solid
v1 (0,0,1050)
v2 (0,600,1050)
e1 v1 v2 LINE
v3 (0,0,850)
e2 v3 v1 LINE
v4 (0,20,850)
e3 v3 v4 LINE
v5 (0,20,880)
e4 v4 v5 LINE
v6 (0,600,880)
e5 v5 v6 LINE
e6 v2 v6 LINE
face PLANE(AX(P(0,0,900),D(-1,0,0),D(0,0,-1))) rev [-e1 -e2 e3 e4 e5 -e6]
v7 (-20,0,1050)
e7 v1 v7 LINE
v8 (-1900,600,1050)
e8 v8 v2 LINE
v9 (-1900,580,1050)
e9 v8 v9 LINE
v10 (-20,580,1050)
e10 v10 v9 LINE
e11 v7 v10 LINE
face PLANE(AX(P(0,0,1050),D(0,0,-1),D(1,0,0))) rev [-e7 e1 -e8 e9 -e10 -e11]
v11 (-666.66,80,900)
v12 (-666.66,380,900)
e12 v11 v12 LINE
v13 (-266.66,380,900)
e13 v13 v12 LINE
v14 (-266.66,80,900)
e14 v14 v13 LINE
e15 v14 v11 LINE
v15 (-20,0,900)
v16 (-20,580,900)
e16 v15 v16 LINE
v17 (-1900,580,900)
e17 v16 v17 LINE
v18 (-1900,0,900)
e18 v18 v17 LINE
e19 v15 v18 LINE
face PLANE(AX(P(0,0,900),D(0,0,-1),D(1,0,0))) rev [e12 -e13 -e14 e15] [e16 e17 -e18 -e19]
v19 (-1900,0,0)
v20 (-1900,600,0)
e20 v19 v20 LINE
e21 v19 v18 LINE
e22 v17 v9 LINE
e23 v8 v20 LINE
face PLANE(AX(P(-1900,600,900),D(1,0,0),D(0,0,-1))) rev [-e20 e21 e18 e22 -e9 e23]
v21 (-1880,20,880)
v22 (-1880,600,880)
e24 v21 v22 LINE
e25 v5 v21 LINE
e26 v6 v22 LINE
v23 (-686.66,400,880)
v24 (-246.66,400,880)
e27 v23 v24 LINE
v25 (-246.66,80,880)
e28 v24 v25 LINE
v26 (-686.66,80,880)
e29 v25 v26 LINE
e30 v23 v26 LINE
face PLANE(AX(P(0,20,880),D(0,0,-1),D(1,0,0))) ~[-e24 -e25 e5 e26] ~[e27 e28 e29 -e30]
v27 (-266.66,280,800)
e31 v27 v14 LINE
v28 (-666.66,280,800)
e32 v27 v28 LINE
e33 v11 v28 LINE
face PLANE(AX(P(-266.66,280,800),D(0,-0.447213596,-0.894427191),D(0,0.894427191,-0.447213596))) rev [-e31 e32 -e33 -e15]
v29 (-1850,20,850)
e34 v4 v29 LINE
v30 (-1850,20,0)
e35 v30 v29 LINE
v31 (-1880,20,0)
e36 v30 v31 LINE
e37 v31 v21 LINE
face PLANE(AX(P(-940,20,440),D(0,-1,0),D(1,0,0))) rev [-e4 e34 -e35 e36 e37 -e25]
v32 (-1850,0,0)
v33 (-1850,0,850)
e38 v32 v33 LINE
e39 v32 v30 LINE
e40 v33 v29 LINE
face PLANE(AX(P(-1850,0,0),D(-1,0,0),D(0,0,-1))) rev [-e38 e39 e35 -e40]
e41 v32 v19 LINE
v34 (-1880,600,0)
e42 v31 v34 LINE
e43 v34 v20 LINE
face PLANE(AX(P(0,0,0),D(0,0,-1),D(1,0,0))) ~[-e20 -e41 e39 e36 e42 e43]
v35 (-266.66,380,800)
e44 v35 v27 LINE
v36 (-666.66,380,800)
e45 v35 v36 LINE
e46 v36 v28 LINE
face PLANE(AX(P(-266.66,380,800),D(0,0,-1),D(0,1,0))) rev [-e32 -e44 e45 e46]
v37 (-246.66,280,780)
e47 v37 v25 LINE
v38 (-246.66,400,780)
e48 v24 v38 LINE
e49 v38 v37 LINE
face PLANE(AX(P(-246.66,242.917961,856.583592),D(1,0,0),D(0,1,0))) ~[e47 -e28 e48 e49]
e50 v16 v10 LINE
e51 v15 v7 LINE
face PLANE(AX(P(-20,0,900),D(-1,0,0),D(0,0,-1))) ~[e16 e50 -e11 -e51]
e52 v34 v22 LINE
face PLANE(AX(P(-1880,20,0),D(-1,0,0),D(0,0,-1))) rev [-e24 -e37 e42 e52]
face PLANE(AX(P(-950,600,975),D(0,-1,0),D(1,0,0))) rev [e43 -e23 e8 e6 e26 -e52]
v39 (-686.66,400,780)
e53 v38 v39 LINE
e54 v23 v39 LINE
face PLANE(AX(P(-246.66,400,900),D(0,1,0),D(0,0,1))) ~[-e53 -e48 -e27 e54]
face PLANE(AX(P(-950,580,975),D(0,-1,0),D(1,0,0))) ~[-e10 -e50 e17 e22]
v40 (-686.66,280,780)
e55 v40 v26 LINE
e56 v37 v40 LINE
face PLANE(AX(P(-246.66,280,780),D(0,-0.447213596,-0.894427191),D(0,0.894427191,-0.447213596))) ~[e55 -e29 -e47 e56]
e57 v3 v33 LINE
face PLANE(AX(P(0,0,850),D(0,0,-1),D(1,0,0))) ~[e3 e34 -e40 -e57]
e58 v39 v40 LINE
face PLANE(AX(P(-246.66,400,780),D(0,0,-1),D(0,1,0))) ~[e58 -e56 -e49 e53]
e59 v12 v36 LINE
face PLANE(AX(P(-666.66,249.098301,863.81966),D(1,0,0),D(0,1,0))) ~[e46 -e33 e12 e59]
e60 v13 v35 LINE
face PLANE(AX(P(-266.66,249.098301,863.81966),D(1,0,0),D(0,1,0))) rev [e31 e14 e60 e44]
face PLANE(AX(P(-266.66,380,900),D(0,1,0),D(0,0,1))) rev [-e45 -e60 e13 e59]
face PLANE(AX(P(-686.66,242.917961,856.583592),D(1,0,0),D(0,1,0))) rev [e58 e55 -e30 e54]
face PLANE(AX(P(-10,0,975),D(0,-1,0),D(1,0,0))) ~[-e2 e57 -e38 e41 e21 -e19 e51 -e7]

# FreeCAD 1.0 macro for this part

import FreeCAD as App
import Part
import Sketcher

V = App.Vector

doc = App.newDocument("Part")
body = doc.addObject("PartDesign::Body", "Body")

# Sketch on XZ plane
sketch1 = doc.addObject("Sketcher::SketchObject", "Sketch")
body.addObject(sketch1)
sketch1.AttachmentSupport = (doc.XZ_Plane, [""])
sketch1.MapMode = "FlatFace"
sketch1.addGeometry(Part.LineSegment(V(0, 880, 0), V(0, 0, 0)), False)
sketch1.addGeometry(Part.LineSegment(V(0, 0, 0), V(1880, 0, 0)), False)
sketch1.addGeometry(Part.LineSegment(V(1880, 0, 0), V(1880, 880, 0)), False)
sketch1.addGeometry(Part.LineSegment(V(1880, 880, 0), V(0, 880, 0)), False)
sketch1.addConstraint(Sketcher.Constraint("Coincident", 0, 2, 1, 1))
sketch1.addConstraint(Sketcher.Constraint("Coincident", 1, 2, 2, 1))
sketch1.addConstraint(Sketcher.Constraint("Coincident", 2, 2, 3, 1))
sketch1.addConstraint(Sketcher.Constraint("Coincident", 3, 2, 0, 1))
sketch1.addConstraint(Sketcher.Constraint("Vertical", 0))
sketch1.addConstraint(Sketcher.Constraint("Horizontal", 1))
sketch1.addConstraint(Sketcher.Constraint("Vertical", 2))
sketch1.addConstraint(Sketcher.Constraint("Horizontal", 3))
sketch1.addConstraint(Sketcher.Constraint("Coincident", 0, 2, -1, 1))
sketch1.addConstraint(Sketcher.Constraint("DistanceX", 1, 1, 1, 2, 1880.0))
sketch1.addConstraint(Sketcher.Constraint("DistanceY", 0, 2, 0, 1, 880.0))
pad1 = doc.addObject("PartDesign::Pad", "Pad")
body.addObject(pad1)
pad1.Profile = sketch1
pad1.Length = 580
pad1.Reversed = True
body2 = doc.addObject("PartDesign::Body", "Body001")
doc.recompute()

body.Placement = App.Placement(V(0, 20, 0), App.Rotation(V(0, 0, 1), 0))
boolean = doc.addObject("PartDesign::Boolean", "Boolean")
body2.addObject(boolean)
boolean.Type = "Fuse"
boolean.addObjects([body])
body3 = doc.addObject("PartDesign::Body", "Body002")

# Sketch on XZ plane
sketch2 = doc.addObject("Sketcher::SketchObject", "Sketch001")
body3.addObject(sketch2)
sketch2.AttachmentSupport = (doc.getObject("XZ_Plane002"), [""])
sketch2.MapMode = "FlatFace"
sketch2.addGeometry(Part.LineSegment(V(0, 850, 0), V(0, 0, 0)), False)
sketch2.addGeometry(Part.LineSegment(V(0, 0, 0), V(1850, 0, 0)), False)
sketch2.addGeometry(Part.LineSegment(V(1850, 0, 0), V(1850, 850, 0)), False)
sketch2.addGeometry(Part.LineSegment(V(1850, 850, 0), V(0, 850, 0)), False)
sketch2.addConstraint(Sketcher.Constraint("Coincident", 0, 2, 1, 1))
sketch2.addConstraint(Sketcher.Constraint("Coincident", 1, 2, 2, 1))
sketch2.addConstraint(Sketcher.Constraint("Coincident", 2, 2, 3, 1))
sketch2.addConstraint(Sketcher.Constraint("Coincident", 3, 2, 0, 1))
sketch2.addConstraint(Sketcher.Constraint("Vertical", 0))
sketch2.addConstraint(Sketcher.Constraint("Horizontal", 1))
sketch2.addConstraint(Sketcher.Constraint("Vertical", 2))
sketch2.addConstraint(Sketcher.Constraint("Horizontal", 3))
sketch2.addConstraint(Sketcher.Constraint("Coincident", 0, 2, -1, 1))
sketch2.addConstraint(Sketcher.Constraint("DistanceX", 1, 1, 1, 2, 1850.0))
sketch2.addConstraint(Sketcher.Constraint("DistanceY", 0, 2, 0, 1, 850.0))
pad2 = doc.addObject("PartDesign::Pad", "Pad001")
body3.addObject(pad2)
pad2.Profile = sketch2
pad2.Length = 20
pad2.Reversed = True
body4 = doc.addObject("PartDesign::Body", "Body003")

# Sketch on XY plane
sketch3 = doc.addObject("Sketcher::SketchObject", "Sketch002")
body4.addObject(sketch3)
sketch3.AttachmentSupport = (doc.getObject("XY_Plane003"), [""])
sketch3.MapMode = "FlatFace"
sketch3.addGeometry(Part.LineSegment(V(0, 300, 0), V(0, 0, 0)), False)
sketch3.addGeometry(Part.LineSegment(V(0, 0, 0), V(400, 0, 0)), False)
sketch3.addGeometry(Part.LineSegment(V(400, 0, 0), V(400, 300, 0)), False)
sketch3.addGeometry(Part.LineSegment(V(400, 300, 0), V(0, 300, 0)), False)
sketch3.addConstraint(Sketcher.Constraint("Coincident", 0, 2, 1, 1))
sketch3.addConstraint(Sketcher.Constraint("Coincident", 1, 2, 2, 1))
sketch3.addConstraint(Sketcher.Constraint("Coincident", 2, 2, 3, 1))
sketch3.addConstraint(Sketcher.Constraint("Coincident", 3, 2, 0, 1))
sketch3.addConstraint(Sketcher.Constraint("Vertical", 0))
sketch3.addConstraint(Sketcher.Constraint("Horizontal", 1))
sketch3.addConstraint(Sketcher.Constraint("Vertical", 2))
sketch3.addConstraint(Sketcher.Constraint("Horizontal", 3))
sketch3.addConstraint(Sketcher.Constraint("Coincident", 0, 2, -1, 1))
sketch3.addConstraint(Sketcher.Constraint("DistanceX", 1, 1, 1, 2, 400.0))
sketch3.addConstraint(Sketcher.Constraint("DistanceY", 0, 2, 0, 1, 300.0))
pad3 = doc.addObject("PartDesign::Pad", "Pad002")
body4.addObject(pad3)
pad3.Profile = sketch3
pad3.Length = 20
body5 = doc.addObject("PartDesign::Body", "Body004")
doc.recompute()

body4.Placement = App.Placement(V(266.66, 80, 880), App.Rotation(V(0, 0, 1), 0))
boolean2 = doc.addObject("PartDesign::Boolean", "Boolean001")
body5.addObject(boolean2)
boolean2.Type = "Fuse"
boolean2.addObjects([body4])
doc.recompute()

boolean3 = doc.addObject("PartDesign::Boolean", "Boolean002")
body5.addObject(boolean3)
boolean3.Type = "Fuse"
boolean3.addObjects([body2])
doc.recompute()

boolean4 = doc.addObject("PartDesign::Boolean", "Boolean003")
body5.addObject(boolean4)
boolean4.Type = "Fuse"
boolean4.addObjects([body3])
body6 = doc.addObject("PartDesign::Body", "Body005")

# Sketch on XZ plane
sketch4 = doc.addObject("Sketcher::SketchObject", "Sketch003")
body6.addObject(sketch4)
sketch4.AttachmentSupport = (doc.getObject("XZ_Plane005"), [""])
sketch4.MapMode = "FlatFace"
sketch4.addGeometry(Part.LineSegment(V(0, 150, 0), V(0, 0, 0)), False)
sketch4.addGeometry(Part.LineSegment(V(0, 0, 0), V(1900, 0, 0)), False)
sketch4.addGeometry(Part.LineSegment(V(1900, 0, 0), V(1900, 150, 0)), False)
sketch4.addGeometry(Part.LineSegment(V(1900, 150, 0), V(0, 150, 0)), False)
sketch4.addConstraint(Sketcher.Constraint("Coincident", 0, 2, 1, 1))
sketch4.addConstraint(Sketcher.Constraint("Coincident", 1, 2, 2, 1))
sketch4.addConstraint(Sketcher.Constraint("Coincident", 2, 2, 3, 1))
sketch4.addConstraint(Sketcher.Constraint("Coincident", 3, 2, 0, 1))
sketch4.addConstraint(Sketcher.Constraint("Vertical", 0))
sketch4.addConstraint(Sketcher.Constraint("Horizontal", 1))
sketch4.addConstraint(Sketcher.Constraint("Vertical", 2))
sketch4.addConstraint(Sketcher.Constraint("Horizontal", 3))
sketch4.addConstraint(Sketcher.Constraint("Coincident", 0, 2, -1, 1))
sketch4.addConstraint(Sketcher.Constraint("DistanceX", 1, 1, 1, 2, 1900.0))
sketch4.addConstraint(Sketcher.Constraint("DistanceY", 0, 2, 0, 1, 150.0))
pad4 = doc.addObject("PartDesign::Pad", "Pad003")
body6.addObject(pad4)
pad4.Profile = sketch4
pad4.Length = 20
body7 = doc.addObject("PartDesign::Body", "Body006")
doc.recompute()

body6.Placement = App.Placement(V(0, 600, 900), App.Rotation(V(0, 0, 1), 0))
boolean5 = doc.addObject("PartDesign::Boolean", "Boolean004")
body7.addObject(boolean5)
boolean5.Type = "Fuse"
boolean5.addObjects([body6])
body8 = doc.addObject("PartDesign::Body", "Body007")

# Sketch on XZ plane
sketch5 = doc.addObject("Sketcher::SketchObject", "Sketch004")
body8.addObject(sketch5)
sketch5.AttachmentSupport = (doc.getObject("XZ_Plane007"), [""])
sketch5.MapMode = "FlatFace"
sketch5.addGeometry(Part.LineSegment(V(0, 150, 0), V(0, 0, 0)), False)
sketch5.addGeometry(Part.LineSegment(V(0, 0, 0), V(20, 0, 0)), False)
sketch5.addGeometry(Part.LineSegment(V(20, 0, 0), V(20, 150, 0)), False)
sketch5.addGeometry(Part.LineSegment(V(20, 150, 0), V(0, 150, 0)), False)
sketch5.addConstraint(Sketcher.Constraint("Coincident", 0, 2, 1, 1))
sketch5.addConstraint(Sketcher.Constraint("Coincident", 1, 2, 2, 1))
sketch5.addConstraint(Sketcher.Constraint("Coincident", 2, 2, 3, 1))
sketch5.addConstraint(Sketcher.Constraint("Coincident", 3, 2, 0, 1))
sketch5.addConstraint(Sketcher.Constraint("Vertical", 0))
sketch5.addConstraint(Sketcher.Constraint("Horizontal", 1))
sketch5.addConstraint(Sketcher.Constraint("Vertical", 2))
sketch5.addConstraint(Sketcher.Constraint("Horizontal", 3))
sketch5.addConstraint(Sketcher.Constraint("Coincident", 0, 2, -1, 1))
sketch5.addConstraint(Sketcher.Constraint("DistanceX", 1, 1, 1, 2, 20.0))
sketch5.addConstraint(Sketcher.Constraint("DistanceY", 0, 2, 0, 1, 150.0))
pad5 = doc.addObject("PartDesign::Pad", "Pad004")
body8.addObject(pad5)
pad5.Profile = sketch5
pad5.Length = 600
pad5.Reversed = True
body9 = doc.addObject("PartDesign::Body", "Body008")
doc.recompute()

body8.Placement = App.Placement(V(0, 0, 900), App.Rotation(V(0, 0, 1), 0))
boolean6 = doc.addObject("PartDesign::Boolean", "Boolean005")
body9.addObject(boolean6)
boolean6.Type = "Fuse"
boolean6.addObjects([body8])
body10 = doc.addObject("PartDesign::Body", "Body009")

# Sketch on XZ plane
sketch6 = doc.addObject("Sketcher::SketchObject", "Sketch005")
body10.addObject(sketch6)
sketch6.AttachmentSupport = (doc.getObject("XZ_Plane009"), [""])
sketch6.MapMode = "FlatFace"
sketch6.addGeometry(Part.LineSegment(V(0, 900, 0), V(0, 0, 0)), False)
sketch6.addGeometry(Part.LineSegment(V(0, 0, 0), V(1900, 0, 0)), False)
sketch6.addGeometry(Part.LineSegment(V(1900, 0, 0), V(1900, 900, 0)), False)
sketch6.addGeometry(Part.LineSegment(V(1900, 900, 0), V(0, 900, 0)), False)
sketch6.addConstraint(Sketcher.Constraint("Coincident", 0, 2, 1, 1))
sketch6.addConstraint(Sketcher.Constraint("Coincident", 1, 2, 2, 1))
sketch6.addConstraint(Sketcher.Constraint("Coincident", 2, 2, 3, 1))
sketch6.addConstraint(Sketcher.Constraint("Coincident", 3, 2, 0, 1))
sketch6.addConstraint(Sketcher.Constraint("Vertical", 0))
sketch6.addConstraint(Sketcher.Constraint("Horizontal", 1))
sketch6.addConstraint(Sketcher.Constraint("Vertical", 2))
sketch6.addConstraint(Sketcher.Constraint("Horizontal", 3))
sketch6.addConstraint(Sketcher.Constraint("Coincident", 0, 2, -1, 1))
sketch6.addConstraint(Sketcher.Constraint("DistanceX", 1, 1, 1, 2, 1900.0))
sketch6.addConstraint(Sketcher.Constraint("DistanceY", 0, 2, 0, 1, 900.0))
pad6 = doc.addObject("PartDesign::Pad", "Pad005")
body10.addObject(pad6)
pad6.Profile = sketch6
pad6.Length = 600
pad6.Reversed = True
doc.recompute()

boolean7 = doc.addObject("PartDesign::Boolean", "Boolean006")
body10.addObject(boolean7)
boolean7.Type = "Fuse"
boolean7.addObjects([body7])
doc.recompute()

boolean8 = doc.addObject("PartDesign::Boolean", "Boolean007")
body10.addObject(boolean8)
boolean8.Type = "Fuse"
boolean8.addObjects([body9])
doc.recompute()

boolean9 = doc.addObject("PartDesign::Boolean", "Boolean008")
body10.addObject(boolean9)
boolean9.Type = "Cut"
boolean9.addObjects([body5])
body11 = doc.addObject("PartDesign::Body", "Body010")

# Sketch on YZ plane
sketch7 = doc.addObject("Sketcher::SketchObject", "Sketch006")
body11.addObject(sketch7)
sketch7.AttachmentSupport = (doc.getObject("YZ_Plane010"), [""])
sketch7.MapMode = "FlatFace"
sketch7.addGeometry(Part.LineSegment(V(300, 0, 0), V(0, 0, 0)), False)
sketch7.addGeometry(Part.LineSegment(V(0, 0, 0), V(200, -100, 0)), False)
sketch7.addGeometry(Part.LineSegment(V(200, -100, 0), V(300, -100, 0)), False)
sketch7.addGeometry(Part.LineSegment(V(300, -100, 0), V(300, 0, 0)), False)
sketch7.addConstraint(Sketcher.Constraint("Coincident", 0, 2, 1, 1))
sketch7.addConstraint(Sketcher.Constraint("Coincident", 1, 2, 2, 1))
sketch7.addConstraint(Sketcher.Constraint("Coincident", 2, 2, 3, 1))
sketch7.addConstraint(Sketcher.Constraint("Coincident", 3, 2, 0, 1))
sketch7.addConstraint(Sketcher.Constraint("Horizontal", 0))
sketch7.addConstraint(Sketcher.Constraint("Horizontal", 2))
sketch7.addConstraint(Sketcher.Constraint("Vertical", 3))
sketch7.addConstraint(Sketcher.Constraint("Coincident", 0, 2, -1, 1))
sketch7.addConstraint(Sketcher.Constraint("Equal", 2, 3))
sketch7.addConstraint(Sketcher.Constraint("DistanceX", 0, 2, 0, 1, 300.0))
sketch7.addConstraint(Sketcher.Constraint("DistanceX", 2, 1, 2, 2, 100.0))
pad7 = doc.addObject("PartDesign::Pad", "Pad006")
body11.addObject(pad7)
pad7.Profile = sketch7
pad7.Length = 400
body12 = doc.addObject("PartDesign::Body", "Body011")

# Sketch on YZ plane
sketch8 = doc.addObject("Sketcher::SketchObject", "Sketch007")
body12.addObject(sketch8)
sketch8.AttachmentSupport = (doc.getObject("YZ_Plane011"), [""])
sketch8.MapMode = "FlatFace"
sketch8.addGeometry(Part.LineSegment(V(320, 0, 0), V(-40, 0, 0)), False)
sketch8.addGeometry(Part.LineSegment(V(-40, 0, 0), V(200, -120, 0)), False)
sketch8.addGeometry(Part.LineSegment(V(200, -120, 0), V(320, -120, 0)), False)
sketch8.addGeometry(Part.LineSegment(V(320, -120, 0), V(320, 0, 0)), False)
sketch8.addConstraint(Sketcher.Constraint("Coincident", 0, 2, 1, 1))
sketch8.addConstraint(Sketcher.Constraint("Coincident", 1, 2, 2, 1))
sketch8.addConstraint(Sketcher.Constraint("Coincident", 2, 2, 3, 1))
sketch8.addConstraint(Sketcher.Constraint("Coincident", 3, 2, 0, 1))
sketch8.addConstraint(Sketcher.Constraint("Horizontal", 0))
sketch8.addConstraint(Sketcher.Constraint("Horizontal", 2))
sketch8.addConstraint(Sketcher.Constraint("Vertical", 3))
sketch8.addConstraint(Sketcher.Constraint("PointOnObject", 0, 2, -1))
sketch8.addConstraint(Sketcher.Constraint("Equal", 2, 3))
sketch8.addConstraint(Sketcher.Constraint("DistanceX", 0, 2, 0, 1, 360.0))
sketch8.addConstraint(Sketcher.Constraint("DistanceX", 2, 1, 2, 2, 120.0))
sketch8.addConstraint(Sketcher.Constraint("DistanceX", 0, 2, -1, 1, 40.0))
pad8 = doc.addObject("PartDesign::Pad", "Pad007")
body12.addObject(pad8)
pad8.Profile = sketch8
pad8.Length = 440
body13 = doc.addObject("PartDesign::Body", "Body012")
doc.recompute()

body12.Placement = App.Placement(V(-20, 0, 0), App.Rotation(V(0, 0, 1), 0))
boolean10 = doc.addObject("PartDesign::Boolean", "Boolean009")
body13.addObject(boolean10)
boolean10.Type = "Fuse"
boolean10.addObjects([body12])
doc.recompute()

boolean11 = doc.addObject("PartDesign::Boolean", "Boolean010")
body13.addObject(boolean11)
boolean11.Type = "Cut"
boolean11.addObjects([body11])
body14 = doc.addObject("PartDesign::Body", "Body013")
doc.recompute()

body13.Placement = App.Placement(V(266.66, 80, 900), App.Rotation(V(0, 0, 1), 0))
boolean12 = doc.addObject("PartDesign::Boolean", "Boolean011")
body14.addObject(boolean12)
boolean12.Type = "Fuse"
boolean12.addObjects([body13])
doc.recompute()

boolean13 = doc.addObject("PartDesign::Boolean", "Boolean012")
body14.addObject(boolean13)
boolean13.Type = "Fuse"
boolean13.addObjects([body10])
body15 = doc.addObject("PartDesign::Body", "Body014")
doc.recompute()

mirroring = doc.addObject("Part::Mirroring", "Mirroring")
mirroring.Source = body14
mirroring.Base = V(0, 0, 0)
mirroring.Normal = V(1, 0, 0)
body15.BaseFeature = mirroring
doc.recompute()
body14.Visibility = False
mirroring.Visibility = False

doc.recompute()
